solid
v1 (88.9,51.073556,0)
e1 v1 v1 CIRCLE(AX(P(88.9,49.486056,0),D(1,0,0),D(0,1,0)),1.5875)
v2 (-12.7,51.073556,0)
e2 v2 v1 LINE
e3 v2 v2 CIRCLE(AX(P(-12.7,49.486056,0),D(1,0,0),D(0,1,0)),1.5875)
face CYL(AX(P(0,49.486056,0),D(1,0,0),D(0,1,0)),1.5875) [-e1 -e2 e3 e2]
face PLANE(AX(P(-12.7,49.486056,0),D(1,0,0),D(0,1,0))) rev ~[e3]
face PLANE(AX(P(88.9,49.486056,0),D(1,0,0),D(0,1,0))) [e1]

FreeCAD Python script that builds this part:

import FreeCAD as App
import Part
import Sketcher
Q = App.Units.Quantity

doc = App.newDocument("Part")
body = doc.addObject("PartDesign::Body", "Body")

sketch1 = body.newObject("Sketcher::SketchObject", "Sketch")
sketch1.AttachmentSupport = (doc.getObject("YZ_Plane"), [""])
sketch1.MapMode = "FlatFace"
sketch1.addGeometry(Part.Circle(App.Vector(49.5, 0, 0), App.Vector(0, 0, 1), 1.6), False)
sketch1.addConstraint(Sketcher.Constraint("PointOnObject", 0, 3, -1))
sketch1.addConstraint(Sketcher.Constraint("Diameter", 0, Q("0.125 in")))
sketch1.addConstraint(Sketcher.Constraint("DistanceX", -1, 1, 0, 3, Q("49.486056 mm")))
pad1 = body.newObject("PartDesign::Pad", "Pad")
pad1.Profile = sketch1
pad1.Type = "TwoLengths"
pad1.Length = Q("3.5 in")
pad1.Length2 = Q("0.5 in")

doc.recompute()
